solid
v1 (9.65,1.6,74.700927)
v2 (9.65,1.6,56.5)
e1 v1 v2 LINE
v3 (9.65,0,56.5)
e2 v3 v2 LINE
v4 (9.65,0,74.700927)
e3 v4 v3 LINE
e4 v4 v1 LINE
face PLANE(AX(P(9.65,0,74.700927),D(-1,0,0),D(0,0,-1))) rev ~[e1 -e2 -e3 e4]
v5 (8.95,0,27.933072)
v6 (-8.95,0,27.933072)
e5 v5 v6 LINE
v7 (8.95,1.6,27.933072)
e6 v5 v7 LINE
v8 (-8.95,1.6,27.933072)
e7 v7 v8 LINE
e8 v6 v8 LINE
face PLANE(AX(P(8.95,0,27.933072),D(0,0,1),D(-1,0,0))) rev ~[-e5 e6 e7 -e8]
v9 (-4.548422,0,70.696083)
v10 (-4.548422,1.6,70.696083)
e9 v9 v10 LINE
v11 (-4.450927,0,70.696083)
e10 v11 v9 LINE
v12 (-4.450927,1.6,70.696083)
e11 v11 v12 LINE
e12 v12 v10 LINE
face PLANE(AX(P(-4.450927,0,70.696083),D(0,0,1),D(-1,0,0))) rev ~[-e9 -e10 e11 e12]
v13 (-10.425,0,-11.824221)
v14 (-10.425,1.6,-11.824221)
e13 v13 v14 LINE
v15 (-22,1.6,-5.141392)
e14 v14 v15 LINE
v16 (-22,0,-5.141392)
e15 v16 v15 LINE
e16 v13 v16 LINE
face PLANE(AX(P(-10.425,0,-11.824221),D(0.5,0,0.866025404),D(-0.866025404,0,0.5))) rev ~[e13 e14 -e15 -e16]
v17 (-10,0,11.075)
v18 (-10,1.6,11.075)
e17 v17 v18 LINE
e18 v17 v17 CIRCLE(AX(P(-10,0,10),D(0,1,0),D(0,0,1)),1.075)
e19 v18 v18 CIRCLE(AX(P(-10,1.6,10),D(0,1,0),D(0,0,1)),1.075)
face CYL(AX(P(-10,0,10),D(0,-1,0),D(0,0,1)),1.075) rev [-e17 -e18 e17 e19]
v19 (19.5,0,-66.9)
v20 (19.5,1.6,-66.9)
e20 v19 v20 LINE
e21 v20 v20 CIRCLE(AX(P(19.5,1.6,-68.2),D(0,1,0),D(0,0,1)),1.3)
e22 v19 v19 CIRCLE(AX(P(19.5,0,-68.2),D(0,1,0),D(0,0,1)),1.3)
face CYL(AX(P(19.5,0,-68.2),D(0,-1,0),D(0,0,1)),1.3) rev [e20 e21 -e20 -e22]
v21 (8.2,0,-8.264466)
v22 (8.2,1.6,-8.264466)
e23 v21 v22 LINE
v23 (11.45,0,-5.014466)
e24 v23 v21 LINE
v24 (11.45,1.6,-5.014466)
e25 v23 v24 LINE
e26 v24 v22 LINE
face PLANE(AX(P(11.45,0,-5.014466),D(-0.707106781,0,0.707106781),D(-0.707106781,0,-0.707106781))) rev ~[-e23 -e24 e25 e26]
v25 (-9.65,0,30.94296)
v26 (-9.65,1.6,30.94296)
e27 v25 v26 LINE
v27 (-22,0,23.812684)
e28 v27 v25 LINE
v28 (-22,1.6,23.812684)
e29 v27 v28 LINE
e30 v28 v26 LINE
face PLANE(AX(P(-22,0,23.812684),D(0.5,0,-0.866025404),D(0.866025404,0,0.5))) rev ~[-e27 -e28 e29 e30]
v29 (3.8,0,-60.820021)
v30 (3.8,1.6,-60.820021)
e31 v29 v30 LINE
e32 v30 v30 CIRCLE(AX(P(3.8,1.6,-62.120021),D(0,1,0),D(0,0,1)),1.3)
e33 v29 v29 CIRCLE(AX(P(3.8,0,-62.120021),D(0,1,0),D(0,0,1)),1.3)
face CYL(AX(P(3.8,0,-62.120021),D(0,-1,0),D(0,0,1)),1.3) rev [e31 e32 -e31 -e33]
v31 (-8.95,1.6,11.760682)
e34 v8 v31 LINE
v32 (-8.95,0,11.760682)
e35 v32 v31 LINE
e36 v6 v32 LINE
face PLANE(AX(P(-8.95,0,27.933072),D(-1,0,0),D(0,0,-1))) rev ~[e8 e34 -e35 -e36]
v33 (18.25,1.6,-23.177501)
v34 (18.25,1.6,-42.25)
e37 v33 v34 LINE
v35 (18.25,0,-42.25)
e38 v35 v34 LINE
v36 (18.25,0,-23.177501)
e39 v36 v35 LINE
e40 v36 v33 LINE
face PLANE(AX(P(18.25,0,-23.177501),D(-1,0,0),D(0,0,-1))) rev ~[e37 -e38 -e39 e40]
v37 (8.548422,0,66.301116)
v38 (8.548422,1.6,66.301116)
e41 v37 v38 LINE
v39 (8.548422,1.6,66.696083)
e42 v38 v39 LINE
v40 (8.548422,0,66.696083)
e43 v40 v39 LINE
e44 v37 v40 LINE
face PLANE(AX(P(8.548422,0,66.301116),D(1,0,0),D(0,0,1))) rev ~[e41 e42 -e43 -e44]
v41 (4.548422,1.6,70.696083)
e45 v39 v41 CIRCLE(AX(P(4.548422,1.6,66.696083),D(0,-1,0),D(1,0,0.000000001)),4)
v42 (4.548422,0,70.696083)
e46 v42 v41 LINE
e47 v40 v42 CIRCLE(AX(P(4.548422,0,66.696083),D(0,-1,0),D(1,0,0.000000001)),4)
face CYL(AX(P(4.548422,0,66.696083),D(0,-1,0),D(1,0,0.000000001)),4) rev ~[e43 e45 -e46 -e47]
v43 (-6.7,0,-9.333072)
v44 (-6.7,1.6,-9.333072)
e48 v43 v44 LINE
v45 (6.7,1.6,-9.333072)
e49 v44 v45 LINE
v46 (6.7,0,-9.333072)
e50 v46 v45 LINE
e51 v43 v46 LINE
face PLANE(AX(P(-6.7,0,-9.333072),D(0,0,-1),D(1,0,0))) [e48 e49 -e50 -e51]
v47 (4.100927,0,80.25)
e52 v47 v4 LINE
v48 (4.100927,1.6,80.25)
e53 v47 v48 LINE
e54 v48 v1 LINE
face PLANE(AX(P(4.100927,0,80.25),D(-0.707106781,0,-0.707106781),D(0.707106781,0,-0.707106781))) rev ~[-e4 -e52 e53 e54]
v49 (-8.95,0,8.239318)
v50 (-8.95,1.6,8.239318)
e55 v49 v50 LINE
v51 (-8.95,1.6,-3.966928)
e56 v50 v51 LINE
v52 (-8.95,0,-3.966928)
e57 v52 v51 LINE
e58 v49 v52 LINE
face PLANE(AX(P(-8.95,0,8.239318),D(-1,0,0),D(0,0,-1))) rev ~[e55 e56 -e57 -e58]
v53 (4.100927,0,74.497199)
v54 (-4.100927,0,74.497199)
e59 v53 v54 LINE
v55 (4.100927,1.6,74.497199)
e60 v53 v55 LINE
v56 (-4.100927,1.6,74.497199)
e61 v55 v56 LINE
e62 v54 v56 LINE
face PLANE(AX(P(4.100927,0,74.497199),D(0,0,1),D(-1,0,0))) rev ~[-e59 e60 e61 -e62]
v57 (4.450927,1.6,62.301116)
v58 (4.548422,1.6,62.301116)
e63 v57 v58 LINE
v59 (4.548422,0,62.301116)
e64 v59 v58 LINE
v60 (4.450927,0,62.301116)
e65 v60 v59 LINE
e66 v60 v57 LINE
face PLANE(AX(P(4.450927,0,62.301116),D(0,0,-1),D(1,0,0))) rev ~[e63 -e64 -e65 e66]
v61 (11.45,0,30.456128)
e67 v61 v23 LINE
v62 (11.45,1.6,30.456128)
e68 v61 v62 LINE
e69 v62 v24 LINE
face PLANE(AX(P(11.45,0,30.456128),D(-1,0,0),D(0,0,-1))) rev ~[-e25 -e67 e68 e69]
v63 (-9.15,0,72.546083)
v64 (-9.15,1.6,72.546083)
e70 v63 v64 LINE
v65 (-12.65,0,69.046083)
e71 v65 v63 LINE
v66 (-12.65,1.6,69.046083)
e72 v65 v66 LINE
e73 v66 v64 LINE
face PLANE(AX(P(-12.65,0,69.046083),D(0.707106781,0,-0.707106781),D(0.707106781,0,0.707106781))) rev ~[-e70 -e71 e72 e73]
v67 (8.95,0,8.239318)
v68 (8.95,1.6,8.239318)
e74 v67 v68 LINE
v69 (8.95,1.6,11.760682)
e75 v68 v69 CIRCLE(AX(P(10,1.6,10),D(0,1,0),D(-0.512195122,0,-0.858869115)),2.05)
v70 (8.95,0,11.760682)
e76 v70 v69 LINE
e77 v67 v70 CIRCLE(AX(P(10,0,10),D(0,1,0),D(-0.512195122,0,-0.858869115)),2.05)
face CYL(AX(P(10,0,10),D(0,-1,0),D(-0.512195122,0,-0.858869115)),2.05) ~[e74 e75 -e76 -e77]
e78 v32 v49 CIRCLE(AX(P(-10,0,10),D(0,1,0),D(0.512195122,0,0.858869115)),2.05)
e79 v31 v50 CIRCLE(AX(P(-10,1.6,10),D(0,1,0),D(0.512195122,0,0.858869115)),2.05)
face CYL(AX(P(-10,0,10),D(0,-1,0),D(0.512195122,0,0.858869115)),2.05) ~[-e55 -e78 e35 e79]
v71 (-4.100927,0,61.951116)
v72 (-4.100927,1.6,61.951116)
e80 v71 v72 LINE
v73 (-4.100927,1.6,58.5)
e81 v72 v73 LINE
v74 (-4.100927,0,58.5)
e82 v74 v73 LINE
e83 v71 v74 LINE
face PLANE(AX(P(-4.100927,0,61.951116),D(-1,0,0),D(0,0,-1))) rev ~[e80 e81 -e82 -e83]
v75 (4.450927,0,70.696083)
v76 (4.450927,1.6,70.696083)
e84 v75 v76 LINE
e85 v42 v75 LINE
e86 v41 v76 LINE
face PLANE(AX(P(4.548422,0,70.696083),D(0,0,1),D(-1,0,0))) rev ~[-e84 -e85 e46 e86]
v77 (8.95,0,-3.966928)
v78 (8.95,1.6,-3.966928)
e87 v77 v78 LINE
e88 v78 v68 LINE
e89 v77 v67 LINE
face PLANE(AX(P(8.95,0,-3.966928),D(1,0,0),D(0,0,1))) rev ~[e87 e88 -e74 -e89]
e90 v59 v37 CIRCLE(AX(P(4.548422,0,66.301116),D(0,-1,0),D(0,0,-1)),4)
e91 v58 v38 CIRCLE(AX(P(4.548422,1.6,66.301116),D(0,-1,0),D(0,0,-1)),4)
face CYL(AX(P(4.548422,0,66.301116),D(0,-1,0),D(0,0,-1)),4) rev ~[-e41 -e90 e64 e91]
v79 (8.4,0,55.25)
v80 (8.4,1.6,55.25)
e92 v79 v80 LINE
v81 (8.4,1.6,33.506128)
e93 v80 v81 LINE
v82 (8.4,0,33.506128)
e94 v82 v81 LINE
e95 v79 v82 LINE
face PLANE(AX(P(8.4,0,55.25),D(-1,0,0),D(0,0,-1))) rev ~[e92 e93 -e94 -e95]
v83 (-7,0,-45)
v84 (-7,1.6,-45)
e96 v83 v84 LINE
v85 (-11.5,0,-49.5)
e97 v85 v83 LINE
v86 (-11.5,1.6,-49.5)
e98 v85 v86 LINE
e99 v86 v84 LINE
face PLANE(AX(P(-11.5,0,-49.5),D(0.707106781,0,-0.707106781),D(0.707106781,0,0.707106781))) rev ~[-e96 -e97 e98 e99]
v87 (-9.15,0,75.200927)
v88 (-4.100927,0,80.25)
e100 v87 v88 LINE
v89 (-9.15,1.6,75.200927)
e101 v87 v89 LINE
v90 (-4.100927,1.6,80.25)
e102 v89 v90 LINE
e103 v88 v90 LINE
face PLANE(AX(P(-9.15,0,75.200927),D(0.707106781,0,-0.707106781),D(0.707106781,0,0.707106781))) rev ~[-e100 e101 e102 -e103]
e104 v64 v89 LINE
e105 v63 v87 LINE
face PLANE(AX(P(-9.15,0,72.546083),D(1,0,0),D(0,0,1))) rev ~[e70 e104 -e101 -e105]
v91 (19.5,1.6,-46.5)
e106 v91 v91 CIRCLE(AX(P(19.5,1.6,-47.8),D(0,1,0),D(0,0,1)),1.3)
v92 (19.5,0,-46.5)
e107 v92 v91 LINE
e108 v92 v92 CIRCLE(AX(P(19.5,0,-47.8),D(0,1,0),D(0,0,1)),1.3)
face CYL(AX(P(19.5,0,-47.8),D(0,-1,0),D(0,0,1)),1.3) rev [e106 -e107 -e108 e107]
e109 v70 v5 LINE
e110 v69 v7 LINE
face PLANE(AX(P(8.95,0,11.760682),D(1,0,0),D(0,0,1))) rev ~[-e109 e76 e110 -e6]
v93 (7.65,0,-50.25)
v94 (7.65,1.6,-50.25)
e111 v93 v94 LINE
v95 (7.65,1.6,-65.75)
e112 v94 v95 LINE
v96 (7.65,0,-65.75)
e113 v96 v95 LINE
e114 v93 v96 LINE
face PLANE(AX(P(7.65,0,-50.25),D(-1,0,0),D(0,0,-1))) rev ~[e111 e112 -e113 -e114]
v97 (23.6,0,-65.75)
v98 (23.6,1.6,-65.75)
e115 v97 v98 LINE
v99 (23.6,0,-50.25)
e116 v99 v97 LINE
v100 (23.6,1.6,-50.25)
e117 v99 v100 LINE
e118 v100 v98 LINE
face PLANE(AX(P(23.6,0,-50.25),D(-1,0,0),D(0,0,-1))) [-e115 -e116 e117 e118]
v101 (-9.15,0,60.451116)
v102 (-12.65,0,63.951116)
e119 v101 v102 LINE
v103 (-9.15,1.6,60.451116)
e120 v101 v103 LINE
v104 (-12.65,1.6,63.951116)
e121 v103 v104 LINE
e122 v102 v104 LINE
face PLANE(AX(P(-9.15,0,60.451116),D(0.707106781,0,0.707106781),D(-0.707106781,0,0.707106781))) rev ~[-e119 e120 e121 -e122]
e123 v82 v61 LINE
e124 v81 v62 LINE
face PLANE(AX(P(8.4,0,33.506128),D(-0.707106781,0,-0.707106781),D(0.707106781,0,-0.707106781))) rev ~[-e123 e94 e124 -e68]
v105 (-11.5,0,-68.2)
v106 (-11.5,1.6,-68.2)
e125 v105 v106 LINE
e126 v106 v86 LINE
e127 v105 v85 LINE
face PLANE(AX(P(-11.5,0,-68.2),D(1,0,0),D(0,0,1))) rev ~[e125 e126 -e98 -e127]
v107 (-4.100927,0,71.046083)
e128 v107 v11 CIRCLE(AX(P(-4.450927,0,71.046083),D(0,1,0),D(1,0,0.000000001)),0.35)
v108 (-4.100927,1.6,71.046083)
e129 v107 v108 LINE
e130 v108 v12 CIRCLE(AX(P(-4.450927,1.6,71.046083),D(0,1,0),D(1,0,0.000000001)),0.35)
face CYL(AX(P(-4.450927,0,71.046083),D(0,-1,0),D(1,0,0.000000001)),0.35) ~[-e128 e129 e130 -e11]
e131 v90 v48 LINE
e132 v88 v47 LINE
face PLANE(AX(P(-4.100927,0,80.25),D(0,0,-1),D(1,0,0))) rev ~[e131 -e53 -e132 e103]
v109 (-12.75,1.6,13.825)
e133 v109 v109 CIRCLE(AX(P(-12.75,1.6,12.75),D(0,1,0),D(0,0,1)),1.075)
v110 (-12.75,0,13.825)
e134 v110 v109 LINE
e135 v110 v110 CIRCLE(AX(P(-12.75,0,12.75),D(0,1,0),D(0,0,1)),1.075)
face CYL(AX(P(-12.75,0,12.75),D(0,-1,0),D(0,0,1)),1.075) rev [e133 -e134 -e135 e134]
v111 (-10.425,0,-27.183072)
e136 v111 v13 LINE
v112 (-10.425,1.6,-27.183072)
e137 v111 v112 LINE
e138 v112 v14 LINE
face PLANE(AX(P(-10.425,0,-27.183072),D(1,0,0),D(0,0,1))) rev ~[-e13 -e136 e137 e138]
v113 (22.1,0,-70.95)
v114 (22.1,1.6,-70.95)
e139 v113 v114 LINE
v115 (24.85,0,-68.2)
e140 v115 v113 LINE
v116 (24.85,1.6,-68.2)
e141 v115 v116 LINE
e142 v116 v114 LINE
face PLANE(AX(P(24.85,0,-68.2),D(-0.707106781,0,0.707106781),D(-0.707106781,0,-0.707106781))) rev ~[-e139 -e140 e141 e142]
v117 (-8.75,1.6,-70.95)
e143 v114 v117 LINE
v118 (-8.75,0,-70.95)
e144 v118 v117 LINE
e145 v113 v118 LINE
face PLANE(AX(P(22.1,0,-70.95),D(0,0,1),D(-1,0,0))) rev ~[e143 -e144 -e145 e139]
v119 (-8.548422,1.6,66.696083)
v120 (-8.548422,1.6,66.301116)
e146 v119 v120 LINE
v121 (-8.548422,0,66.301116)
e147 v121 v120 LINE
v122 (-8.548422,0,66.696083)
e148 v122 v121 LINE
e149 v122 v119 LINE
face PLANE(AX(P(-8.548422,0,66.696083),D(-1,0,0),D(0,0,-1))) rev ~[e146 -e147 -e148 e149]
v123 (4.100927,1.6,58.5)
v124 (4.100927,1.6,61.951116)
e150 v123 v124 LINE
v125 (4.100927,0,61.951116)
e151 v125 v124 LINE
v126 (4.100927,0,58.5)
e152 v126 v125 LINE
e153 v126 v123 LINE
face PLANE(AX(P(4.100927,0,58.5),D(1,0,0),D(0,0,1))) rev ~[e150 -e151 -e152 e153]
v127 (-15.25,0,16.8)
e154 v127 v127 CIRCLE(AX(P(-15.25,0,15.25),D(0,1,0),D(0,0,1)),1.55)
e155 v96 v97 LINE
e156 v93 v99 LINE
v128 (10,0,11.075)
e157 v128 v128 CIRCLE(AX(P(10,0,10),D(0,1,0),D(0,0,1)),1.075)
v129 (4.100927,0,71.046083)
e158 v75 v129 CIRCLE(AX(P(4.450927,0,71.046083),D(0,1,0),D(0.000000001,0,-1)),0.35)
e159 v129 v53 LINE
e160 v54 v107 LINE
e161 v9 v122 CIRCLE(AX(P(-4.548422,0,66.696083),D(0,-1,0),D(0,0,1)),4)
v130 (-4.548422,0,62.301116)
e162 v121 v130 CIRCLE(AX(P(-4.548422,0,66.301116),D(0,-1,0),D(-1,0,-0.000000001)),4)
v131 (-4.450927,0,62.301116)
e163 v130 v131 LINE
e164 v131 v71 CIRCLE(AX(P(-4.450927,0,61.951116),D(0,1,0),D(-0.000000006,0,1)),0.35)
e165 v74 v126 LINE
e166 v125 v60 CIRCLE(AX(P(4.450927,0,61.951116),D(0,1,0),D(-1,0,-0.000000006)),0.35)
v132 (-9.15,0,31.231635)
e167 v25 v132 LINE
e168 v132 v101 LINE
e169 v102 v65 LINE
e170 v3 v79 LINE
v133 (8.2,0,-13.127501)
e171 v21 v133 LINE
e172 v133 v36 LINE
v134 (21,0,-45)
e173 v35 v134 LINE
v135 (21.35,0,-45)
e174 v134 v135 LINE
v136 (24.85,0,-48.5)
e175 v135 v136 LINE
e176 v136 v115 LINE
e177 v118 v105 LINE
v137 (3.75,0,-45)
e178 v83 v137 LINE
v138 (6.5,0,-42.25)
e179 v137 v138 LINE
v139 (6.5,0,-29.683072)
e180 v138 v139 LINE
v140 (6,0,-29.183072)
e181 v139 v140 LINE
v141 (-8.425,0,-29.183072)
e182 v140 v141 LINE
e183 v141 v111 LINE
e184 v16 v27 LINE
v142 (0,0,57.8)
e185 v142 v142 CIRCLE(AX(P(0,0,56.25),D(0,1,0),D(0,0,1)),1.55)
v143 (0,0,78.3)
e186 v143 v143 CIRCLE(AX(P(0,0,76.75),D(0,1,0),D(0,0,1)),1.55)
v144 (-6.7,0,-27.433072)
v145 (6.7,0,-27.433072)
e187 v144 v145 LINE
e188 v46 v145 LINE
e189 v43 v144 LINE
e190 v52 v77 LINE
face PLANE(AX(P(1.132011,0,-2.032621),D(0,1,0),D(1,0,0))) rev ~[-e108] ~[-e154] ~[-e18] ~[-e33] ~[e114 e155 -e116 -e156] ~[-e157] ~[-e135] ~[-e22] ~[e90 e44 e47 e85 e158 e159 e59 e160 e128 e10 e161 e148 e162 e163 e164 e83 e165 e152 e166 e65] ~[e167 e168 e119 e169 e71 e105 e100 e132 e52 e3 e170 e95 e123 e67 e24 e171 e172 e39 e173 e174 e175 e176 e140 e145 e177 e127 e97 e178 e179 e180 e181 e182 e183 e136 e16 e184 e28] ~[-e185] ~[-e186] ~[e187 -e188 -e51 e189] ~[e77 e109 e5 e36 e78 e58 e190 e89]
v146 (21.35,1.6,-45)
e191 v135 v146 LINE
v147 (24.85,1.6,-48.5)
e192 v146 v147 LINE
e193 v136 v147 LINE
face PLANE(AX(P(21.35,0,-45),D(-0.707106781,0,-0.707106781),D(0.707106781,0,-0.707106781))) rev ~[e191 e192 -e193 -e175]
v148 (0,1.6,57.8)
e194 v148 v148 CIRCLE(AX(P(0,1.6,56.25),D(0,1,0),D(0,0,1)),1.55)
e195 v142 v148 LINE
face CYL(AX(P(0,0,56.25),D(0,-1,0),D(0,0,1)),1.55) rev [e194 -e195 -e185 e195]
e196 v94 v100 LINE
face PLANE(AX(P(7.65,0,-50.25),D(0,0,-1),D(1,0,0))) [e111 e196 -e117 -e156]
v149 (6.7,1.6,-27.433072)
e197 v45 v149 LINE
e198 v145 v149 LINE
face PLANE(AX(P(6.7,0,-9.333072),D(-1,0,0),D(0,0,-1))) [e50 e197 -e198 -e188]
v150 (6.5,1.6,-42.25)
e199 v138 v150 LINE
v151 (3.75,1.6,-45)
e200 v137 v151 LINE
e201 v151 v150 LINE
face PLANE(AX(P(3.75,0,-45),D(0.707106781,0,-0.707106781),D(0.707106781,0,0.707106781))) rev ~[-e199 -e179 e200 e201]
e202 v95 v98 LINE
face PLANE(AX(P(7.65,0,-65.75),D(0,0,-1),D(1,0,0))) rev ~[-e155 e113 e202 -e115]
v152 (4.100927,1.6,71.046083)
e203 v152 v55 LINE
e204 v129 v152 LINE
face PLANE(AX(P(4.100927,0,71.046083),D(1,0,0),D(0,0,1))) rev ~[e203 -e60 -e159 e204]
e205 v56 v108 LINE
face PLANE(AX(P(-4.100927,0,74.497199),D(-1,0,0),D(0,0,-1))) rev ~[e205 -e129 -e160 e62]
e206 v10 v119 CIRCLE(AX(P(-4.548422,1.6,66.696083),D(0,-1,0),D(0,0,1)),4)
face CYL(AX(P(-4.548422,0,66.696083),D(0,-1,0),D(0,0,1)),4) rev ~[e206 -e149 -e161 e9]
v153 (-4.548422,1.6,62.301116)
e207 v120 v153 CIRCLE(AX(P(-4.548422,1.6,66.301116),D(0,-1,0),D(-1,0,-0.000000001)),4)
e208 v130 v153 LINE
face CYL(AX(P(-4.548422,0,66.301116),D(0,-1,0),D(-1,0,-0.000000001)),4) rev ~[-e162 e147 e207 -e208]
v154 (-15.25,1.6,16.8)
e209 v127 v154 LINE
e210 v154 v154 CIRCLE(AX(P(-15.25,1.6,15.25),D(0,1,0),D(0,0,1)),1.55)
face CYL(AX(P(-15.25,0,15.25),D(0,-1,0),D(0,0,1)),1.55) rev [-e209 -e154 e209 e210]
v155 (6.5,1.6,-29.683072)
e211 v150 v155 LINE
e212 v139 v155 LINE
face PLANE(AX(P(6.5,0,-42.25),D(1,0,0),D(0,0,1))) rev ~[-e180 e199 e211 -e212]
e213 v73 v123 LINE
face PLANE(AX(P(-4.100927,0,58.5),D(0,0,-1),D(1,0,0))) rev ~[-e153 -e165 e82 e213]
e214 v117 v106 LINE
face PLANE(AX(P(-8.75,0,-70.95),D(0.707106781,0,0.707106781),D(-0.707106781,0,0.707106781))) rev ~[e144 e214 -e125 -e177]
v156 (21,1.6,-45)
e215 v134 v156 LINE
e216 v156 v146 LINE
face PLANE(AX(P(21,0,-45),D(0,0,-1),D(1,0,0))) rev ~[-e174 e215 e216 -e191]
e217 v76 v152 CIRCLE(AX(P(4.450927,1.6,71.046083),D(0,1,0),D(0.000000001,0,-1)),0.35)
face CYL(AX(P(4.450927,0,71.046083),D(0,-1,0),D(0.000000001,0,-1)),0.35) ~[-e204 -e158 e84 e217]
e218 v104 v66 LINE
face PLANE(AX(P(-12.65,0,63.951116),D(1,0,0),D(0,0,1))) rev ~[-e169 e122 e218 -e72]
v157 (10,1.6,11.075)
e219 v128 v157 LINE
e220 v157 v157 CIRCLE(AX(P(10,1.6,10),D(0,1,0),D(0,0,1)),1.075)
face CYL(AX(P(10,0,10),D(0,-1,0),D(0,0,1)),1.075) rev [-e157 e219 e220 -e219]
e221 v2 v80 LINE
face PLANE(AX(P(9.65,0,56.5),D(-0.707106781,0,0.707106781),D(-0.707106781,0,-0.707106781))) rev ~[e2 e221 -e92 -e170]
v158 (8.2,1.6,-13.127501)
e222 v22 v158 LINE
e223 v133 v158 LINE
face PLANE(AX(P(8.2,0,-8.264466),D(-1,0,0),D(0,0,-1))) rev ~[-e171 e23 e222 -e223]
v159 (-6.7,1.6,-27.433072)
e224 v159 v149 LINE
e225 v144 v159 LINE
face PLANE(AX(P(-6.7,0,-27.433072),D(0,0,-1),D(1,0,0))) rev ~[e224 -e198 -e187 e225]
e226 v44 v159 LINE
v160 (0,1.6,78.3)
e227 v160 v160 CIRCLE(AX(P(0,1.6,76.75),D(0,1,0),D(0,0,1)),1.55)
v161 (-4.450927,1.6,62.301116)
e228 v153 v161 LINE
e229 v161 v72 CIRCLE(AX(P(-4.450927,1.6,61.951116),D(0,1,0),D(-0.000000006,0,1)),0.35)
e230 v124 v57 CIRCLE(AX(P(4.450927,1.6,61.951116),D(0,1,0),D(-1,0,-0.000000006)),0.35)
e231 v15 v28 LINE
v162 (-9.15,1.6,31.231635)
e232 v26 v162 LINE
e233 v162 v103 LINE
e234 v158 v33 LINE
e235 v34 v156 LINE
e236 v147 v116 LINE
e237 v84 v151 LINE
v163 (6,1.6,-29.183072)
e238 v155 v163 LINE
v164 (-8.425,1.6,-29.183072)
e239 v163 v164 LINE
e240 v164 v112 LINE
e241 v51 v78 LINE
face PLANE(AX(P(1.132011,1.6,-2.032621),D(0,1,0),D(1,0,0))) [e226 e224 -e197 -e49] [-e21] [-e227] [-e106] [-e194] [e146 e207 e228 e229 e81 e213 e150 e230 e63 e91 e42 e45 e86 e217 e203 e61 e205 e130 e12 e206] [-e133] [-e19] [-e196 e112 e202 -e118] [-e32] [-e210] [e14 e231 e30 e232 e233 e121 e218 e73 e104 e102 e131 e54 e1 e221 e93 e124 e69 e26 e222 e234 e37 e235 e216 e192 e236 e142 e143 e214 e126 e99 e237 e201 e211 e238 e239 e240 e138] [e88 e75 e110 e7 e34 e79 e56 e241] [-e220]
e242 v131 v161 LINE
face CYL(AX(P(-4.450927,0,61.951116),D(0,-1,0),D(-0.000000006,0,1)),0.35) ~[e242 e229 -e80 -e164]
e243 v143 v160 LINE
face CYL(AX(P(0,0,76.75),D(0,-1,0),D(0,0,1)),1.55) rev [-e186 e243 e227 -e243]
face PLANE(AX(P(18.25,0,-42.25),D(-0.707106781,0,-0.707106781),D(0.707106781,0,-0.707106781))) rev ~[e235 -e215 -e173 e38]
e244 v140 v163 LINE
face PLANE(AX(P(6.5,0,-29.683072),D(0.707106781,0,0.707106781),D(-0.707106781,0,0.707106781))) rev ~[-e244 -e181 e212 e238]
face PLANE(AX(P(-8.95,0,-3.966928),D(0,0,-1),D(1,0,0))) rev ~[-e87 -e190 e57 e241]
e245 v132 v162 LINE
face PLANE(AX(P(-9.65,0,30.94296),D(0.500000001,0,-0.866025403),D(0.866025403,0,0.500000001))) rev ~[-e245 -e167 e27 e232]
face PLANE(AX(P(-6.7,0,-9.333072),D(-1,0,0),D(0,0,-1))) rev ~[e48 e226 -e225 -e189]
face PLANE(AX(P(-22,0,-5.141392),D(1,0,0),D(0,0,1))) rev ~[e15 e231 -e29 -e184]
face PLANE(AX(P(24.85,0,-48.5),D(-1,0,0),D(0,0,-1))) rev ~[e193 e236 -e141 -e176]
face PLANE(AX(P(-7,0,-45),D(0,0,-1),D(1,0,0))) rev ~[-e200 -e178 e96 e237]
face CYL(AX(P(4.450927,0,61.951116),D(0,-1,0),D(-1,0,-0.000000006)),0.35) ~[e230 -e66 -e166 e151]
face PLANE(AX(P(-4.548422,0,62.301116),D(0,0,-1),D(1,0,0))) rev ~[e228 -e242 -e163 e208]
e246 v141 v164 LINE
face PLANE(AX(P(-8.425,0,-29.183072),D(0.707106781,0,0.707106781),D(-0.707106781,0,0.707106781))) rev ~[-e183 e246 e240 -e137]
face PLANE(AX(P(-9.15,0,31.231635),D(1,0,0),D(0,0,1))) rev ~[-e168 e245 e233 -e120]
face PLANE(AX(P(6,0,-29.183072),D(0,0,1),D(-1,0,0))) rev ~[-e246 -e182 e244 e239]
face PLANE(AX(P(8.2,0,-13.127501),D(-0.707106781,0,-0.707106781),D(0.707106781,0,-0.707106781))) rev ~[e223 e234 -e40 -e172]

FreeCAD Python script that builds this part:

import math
import FreeCAD as App
import Part
import Sketcher

V = App.Vector
Q = App.Units.Quantity

doc = App.newDocument("Part")
body = doc.addObject("PartDesign::Body", "Body")

# Sketch on XZ plane
sketch1 = body.newObject("Sketcher::SketchObject", "Sketch")
sketch1.AttachmentSupport = (doc.getObject("XZ_Plane"), [""])
sketch1.MapMode = "FlatFace"
sketch1.addGeometry(Part.LineSegment(V(3.75, -45, 0), V(6.5, -42.25, 0)), False)
sketch1.addGeometry(Part.LineSegment(V(6.5, -42.25, 0), V(6.5, -29.68, 0)), False)
sketch1.addGeometry(Part.LineSegment(V(6.5, -29.68, 0), V(6, -29.18, 0)), False)
sketch1.addGeometry(Part.LineSegment(V(6, -29.18, 0), V(-8.43, -29.18, 0)), False)
sketch1.addGeometry(Part.LineSegment(V(-8.43, -29.18, 0), V(-10.43, -27.18, 0)), False)
sketch1.addGeometry(Part.LineSegment(V(-10.43, -27.18, 0), V(-10.43, -11.82, 0)), False)
sketch1.addGeometry(Part.LineSegment(V(-10.43, -11.82, 0), V(-22, -5.14, 0)), False)
sketch1.addGeometry(Part.LineSegment(V(-22, -5.14, 0), V(-22, 23.81, 0)), False)
sketch1.addGeometry(Part.LineSegment(V(-22, 23.81, 0), V(-9.65, 30.94, 0)), False)
sketch1.addGeometry(Part.LineSegment(V(-9.65, 30.94, 0), V(-9.15, 31.23, 0)), False)
sketch1.addGeometry(Part.LineSegment(V(-9.15, 31.23, 0), V(-9.15, 60.45, 0)), False)
sketch1.addGeometry(Part.LineSegment(V(-9.15, 60.45, 0), V(-12.65, 63.95, 0)), False)
sketch1.addGeometry(Part.LineSegment(V(-12.65, 63.95, 0), V(-12.65, 69.05, 0)), False)
sketch1.addGeometry(Part.LineSegment(V(-12.65, 69.05, 0), V(-9.15, 72.55, 0)), False)
sketch1.addGeometry(Part.LineSegment(V(-9.15, 72.55, 0), V(-9.15, 75.2, 0)), False)
sketch1.addGeometry(Part.LineSegment(V(-9.15, 75.2, 0), V(-4.1, 80.25, 0)), False)
sketch1.addGeometry(Part.LineSegment(V(-4.1, 80.25, 0), V(4.1, 80.25, 0)), False)
sketch1.addGeometry(Part.LineSegment(V(4.1, 80.25, 0), V(9.65, 74.7, 0)), False)
sketch1.addGeometry(Part.LineSegment(V(9.65, 74.7, 0), V(9.65, 56.5, 0)), False)
sketch1.addGeometry(Part.LineSegment(V(9.65, 56.5, 0), V(8.4, 55.25, 0)), False)
sketch1.addGeometry(Part.LineSegment(V(8.4, 55.25, 0), V(8.4, 33.51, 0)), False)
sketch1.addGeometry(Part.LineSegment(V(8.4, 33.51, 0), V(11.45, 30.46, 0)), False)
sketch1.addGeometry(Part.LineSegment(V(11.45, 30.46, 0), V(11.45, -5.01, 0)), False)
sketch1.addGeometry(Part.LineSegment(V(11.45, -5.01, 0), V(8.2, -8.26, 0)), False)
sketch1.addGeometry(Part.LineSegment(V(8.2, -8.26, 0), V(8.2, -13.13, 0)), False)
sketch1.addGeometry(Part.LineSegment(V(8.2, -13.13, 0), V(18.25, -23.18, 0)), False)
sketch1.addGeometry(Part.LineSegment(V(18.25, -23.18, 0), V(18.25, -42.25, 0)), False)
sketch1.addGeometry(Part.LineSegment(V(18.25, -42.25, 0), V(21, -45, 0)), False)
sketch1.addGeometry(Part.LineSegment(V(21, -45, 0), V(21.35, -45, 0)), False)
sketch1.addGeometry(Part.LineSegment(V(21.35, -45, 0), V(24.85, -48.5, 0)), False)
sketch1.addGeometry(Part.LineSegment(V(24.85, -48.5, 0), V(24.85, -68.2, 0)), False)
sketch1.addGeometry(Part.LineSegment(V(24.85, -68.2, 0), V(22.1, -70.95, 0)), False)
sketch1.addGeometry(Part.LineSegment(V(22.1, -70.95, 0), V(-8.75, -70.95, 0)), False)
sketch1.addGeometry(Part.LineSegment(V(-8.75, -70.95, 0), V(-11.5, -68.2, 0)), False)
sketch1.addGeometry(Part.LineSegment(V(-11.5, -68.2, 0), V(-11.5, -49.5, 0)), False)
sketch1.addGeometry(Part.LineSegment(V(-11.5, -49.5, 0), V(-7, -45, 0)), False)
sketch1.addGeometry(Part.LineSegment(V(-7, -45, 0), V(3.75, -45, 0)), False)
sketch1.addGeometry(Part.Circle(V(0, 76.75, 0), V(0, 0, 1), 1.55), False)
sketch1.addGeometry(Part.ArcOfCircle(Part.Circle(V(-4.45, 61.95, 0), V(0, 0, 1), 0.35), math.radians(0), math.radians(90)), False)
sketch1.addGeometry(Part.LineSegment(V(-4.1, 61.95, 0), V(-4.1, 58.5, 0)), False)
sketch1.addGeometry(Part.LineSegment(V(-4.1, 58.5, 0), V(4.1, 58.5, 0)), False)
sketch1.addGeometry(Part.LineSegment(V(4.1, 58.5, 0), V(4.1, 61.95, 0)), False)
sketch1.addGeometry(Part.ArcOfCircle(Part.Circle(V(4.45, 61.95, 0), V(0, 0, 1), 0.35), math.radians(90), math.radians(180)), False)
sketch1.addGeometry(Part.LineSegment(V(4.45, 62.3, 0), V(4.55, 62.3, 0)), False)
sketch1.addGeometry(Part.ArcOfCircle(Part.Circle(V(4.55, 66.3, 0), V(0, 0, 1), 4), math.radians(-90), math.radians(0)), False)
sketch1.addGeometry(Part.LineSegment(V(8.55, 66.3, 0), V(8.55, 66.7, 0)), False)
sketch1.addGeometry(Part.ArcOfCircle(Part.Circle(V(4.55, 66.7, 0), V(0, 0, 1), 4), math.radians(0), math.radians(90)), False)
sketch1.addGeometry(Part.LineSegment(V(4.55, 70.7, 0), V(4.45, 70.7, 0)), False)
sketch1.addGeometry(Part.ArcOfCircle(Part.Circle(V(4.45, 71.05, 0), V(0, 0, 1), 0.35), math.radians(180), math.radians(270)), False)
sketch1.addGeometry(Part.LineSegment(V(4.1, 71.05, 0), V(4.1, 74.5, 0)), False)
sketch1.addGeometry(Part.LineSegment(V(4.1, 74.5, 0), V(-4.1, 74.5, 0)), False)
sketch1.addGeometry(Part.LineSegment(V(-4.1, 74.5, 0), V(-4.1, 71.05, 0)), False)
sketch1.addGeometry(Part.ArcOfCircle(Part.Circle(V(-4.45, 71.05, 0), V(0, 0, 1), 0.35), math.radians(-90), math.radians(0)), False)
sketch1.addGeometry(Part.LineSegment(V(-4.45, 70.7, 0), V(-4.55, 70.7, 0)), False)
sketch1.addGeometry(Part.ArcOfCircle(Part.Circle(V(-4.55, 66.7, 0), V(0, 0, 1), 4), math.radians(90), math.radians(180)), False)
sketch1.addGeometry(Part.LineSegment(V(-8.55, 66.7, 0), V(-8.55, 66.3, 0)), False)
sketch1.addGeometry(Part.ArcOfCircle(Part.Circle(V(-4.55, 66.3, 0), V(0, 0, 1), 4), math.radians(-180), math.radians(-90)), False)
sketch1.addGeometry(Part.LineSegment(V(-4.55, 62.3, 0), V(-4.45, 62.3, 0)), False)
sketch1.addGeometry(Part.Circle(V(0, 56.25, 0), V(0, 0, 1), 1.55), False)
sketch1.addGeometry(Part.Circle(V(-15.25, 15.25, 0), V(0, 0, 1), 1.55), False)
sketch1.addGeometry(Part.Circle(V(-12.75, 12.75, 0), V(0, 0, 1), 1.07), False)
sketch1.addGeometry(Part.Circle(V(-10, 10, 0), V(0, 0, 1), 1.07), False)
sketch1.addGeometry(Part.ArcOfCircle(Part.Circle(V(-10, 10, 0), V(0, 0, 1), 2.05), math.radians(-59), math.radians(59)), False)
sketch1.addGeometry(Part.LineSegment(V(-8.95, 8.24, 0), V(-8.95, -3.97, 0)), False)
sketch1.addGeometry(Part.LineSegment(V(-8.95, -3.97, 0), V(8.95, -3.97, 0)), False)
sketch1.addGeometry(Part.LineSegment(V(8.95, -3.97, 0), V(8.95, 8.24, 0)), False)
sketch1.addGeometry(Part.ArcOfCircle(Part.Circle(V(10, 10, 0), V(0, 0, 1), 2.05), math.radians(121), math.radians(239)), False)
sketch1.addGeometry(Part.LineSegment(V(8.95, 11.76, 0), V(8.95, 27.93, 0)), False)
sketch1.addGeometry(Part.LineSegment(V(8.95, 27.93, 0), V(-8.95, 27.93, 0)), False)
sketch1.addGeometry(Part.LineSegment(V(-8.95, 27.93, 0), V(-8.95, 11.76, 0)), False)
sketch1.addGeometry(Part.Circle(V(10, 10, 0), V(0, 0, 1), 1.07), False)
sketch1.addGeometry(Part.LineSegment(V(6.7, -9.33, 0), V(-6.7, -9.33, 0)), False)
sketch1.addGeometry(Part.LineSegment(V(-6.7, -9.33, 0), V(-6.7, -27.43, 0)), False)
sketch1.addGeometry(Part.LineSegment(V(-6.7, -27.43, 0), V(6.7, -27.43, 0)), False)
sketch1.addGeometry(Part.LineSegment(V(6.7, -27.43, 0), V(6.7, -9.33, 0)), False)
sketch1.addGeometry(Part.Circle(V(3.8, -62.12, 0), V(0, 0, 1), 1.3), False)
sketch1.addGeometry(Part.Circle(V(19.5, -47.8, 0), V(0, 0, 1), 1.3), False)
sketch1.addGeometry(Part.LineSegment(V(23.6, -50.25, 0), V(7.65, -50.25, 0)), False)
sketch1.addGeometry(Part.LineSegment(V(7.65, -50.25, 0), V(7.65, -65.75, 0)), False)
sketch1.addGeometry(Part.LineSegment(V(7.65, -65.75, 0), V(23.6, -65.75, 0)), False)
sketch1.addGeometry(Part.LineSegment(V(23.6, -65.75, 0), V(23.6, -50.25, 0)), False)
sketch1.addGeometry(Part.Circle(V(19.5, -68.2, 0), V(0, 0, 1), 1.3), False)
sketch1.addConstraint(Sketcher.Constraint("Coincident", 0, 2, 1, 1))
sketch1.addConstraint(Sketcher.Constraint("Coincident", 1, 2, 2, 1))
sketch1.addConstraint(Sketcher.Constraint("Coincident", 2, 2, 3, 1))
sketch1.addConstraint(Sketcher.Constraint("Coincident", 3, 2, 4, 1))
sketch1.addConstraint(Sketcher.Constraint("Coincident", 4, 2, 5, 1))
sketch1.addConstraint(Sketcher.Constraint("Coincident", 5, 2, 6, 1))
sketch1.addConstraint(Sketcher.Constraint("Coincident", 6, 2, 7, 1))
sketch1.addConstraint(Sketcher.Constraint("Coincident", 7, 2, 8, 1))
sketch1.addConstraint(Sketcher.Constraint("Coincident", 8, 2, 9, 1))
sketch1.addConstraint(Sketcher.Constraint("Coincident", 9, 2, 10, 1))
sketch1.addConstraint(Sketcher.Constraint("Coincident", 10, 2, 11, 1))
sketch1.addConstraint(Sketcher.Constraint("Coincident", 11, 2, 12, 1))
sketch1.addConstraint(Sketcher.Constraint("Coincident", 12, 2, 13, 1))
sketch1.addConstraint(Sketcher.Constraint("Coincident", 13, 2, 14, 1))
sketch1.addConstraint(Sketcher.Constraint("Coincident", 14, 2, 15, 1))
sketch1.addConstraint(Sketcher.Constraint("Coincident", 15, 2, 16, 1))
sketch1.addConstraint(Sketcher.Constraint("Coincident", 16, 2, 17, 1))
sketch1.addConstraint(Sketcher.Constraint("Coincident", 17, 2, 18, 1))
sketch1.addConstraint(Sketcher.Constraint("Coincident", 18, 2, 19, 1))
sketch1.addConstraint(Sketcher.Constraint("Coincident", 19, 2, 20, 1))
sketch1.addConstraint(Sketcher.Constraint("Coincident", 20, 2, 21, 1))
sketch1.addConstraint(Sketcher.Constraint("Coincident", 21, 2, 22, 1))
sketch1.addConstraint(Sketcher.Constraint("Coincident", 22, 2, 23, 1))
sketch1.addConstraint(Sketcher.Constraint("Coincident", 23, 2, 24, 1))
sketch1.addConstraint(Sketcher.Constraint("Coincident", 24, 2, 25, 1))
sketch1.addConstraint(Sketcher.Constraint("Coincident", 25, 2, 26, 1))
sketch1.addConstraint(Sketcher.Constraint("Coincident", 26, 2, 27, 1))
sketch1.addConstraint(Sketcher.Constraint("Coincident", 27, 2, 28, 1))
sketch1.addConstraint(Sketcher.Constraint("Coincident", 28, 2, 29, 1))
sketch1.addConstraint(Sketcher.Constraint("Coincident", 29, 2, 30, 1))
sketch1.addConstraint(Sketcher.Constraint("Coincident", 30, 2, 31, 1))
sketch1.addConstraint(Sketcher.Constraint("Coincident", 31, 2, 32, 1))
sketch1.addConstraint(Sketcher.Constraint("Coincident", 32, 2, 33, 1))
sketch1.addConstraint(Sketcher.Constraint("Coincident", 33, 2, 34, 1))
sketch1.addConstraint(Sketcher.Constraint("Coincident", 34, 2, 35, 1))
sketch1.addConstraint(Sketcher.Constraint("Coincident", 35, 2, 36, 1))
sketch1.addConstraint(Sketcher.Constraint("Coincident", 36, 2, 0, 1))
sketch1.addConstraint(Sketcher.Constraint("Tangent", 38, 1, 39, 1))
sketch1.addConstraint(Sketcher.Constraint("Coincident", 39, 2, 40, 1))
sketch1.addConstraint(Sketcher.Constraint("Coincident", 40, 2, 41, 1))
sketch1.addConstraint(Sketcher.Constraint("Tangent", 41, 2, 42, 2))
sketch1.addConstraint(Sketcher.Constraint("Tangent", 42, 1, 43, 1))
sketch1.addConstraint(Sketcher.Constraint("Tangent", 43, 2, 44, 1))
sketch1.addConstraint(Sketcher.Constraint("Tangent", 44, 2, 45, 1))
sketch1.addConstraint(Sketcher.Constraint("Tangent", 45, 2, 46, 1))
sketch1.addConstraint(Sketcher.Constraint("Tangent", 46, 2, 47, 1))
sketch1.addConstraint(Sketcher.Constraint("Tangent", 47, 2, 48, 2))
sketch1.addConstraint(Sketcher.Constraint("Tangent", 48, 1, 49, 1))
sketch1.addConstraint(Sketcher.Constraint("Coincident", 49, 2, 50, 1))
sketch1.addConstraint(Sketcher.Constraint("Coincident", 50, 2, 51, 1))
sketch1.addConstraint(Sketcher.Constraint("Tangent", 51, 2, 52, 2))
sketch1.addConstraint(Sketcher.Constraint("Tangent", 52, 1, 53, 1))
sketch1.addConstraint(Sketcher.Constraint("Tangent", 53, 2, 54, 1))
sketch1.addConstraint(Sketcher.Constraint("Tangent", 54, 2, 55, 1))
sketch1.addConstraint(Sketcher.Constraint("Tangent", 55, 2, 56, 1))
sketch1.addConstraint(Sketcher.Constraint("Tangent", 56, 2, 57, 1))
sketch1.addConstraint(Sketcher.Constraint("Tangent", 57, 2, 38, 2))
sketch1.addConstraint(Sketcher.Constraint("Coincident", 62, 1, 63, 1))
sketch1.addConstraint(Sketcher.Constraint("Coincident", 63, 2, 64, 1))
sketch1.addConstraint(Sketcher.Constraint("Coincident", 64, 2, 65, 1))
sketch1.addConstraint(Sketcher.Constraint("Coincident", 65, 2, 66, 2))
sketch1.addConstraint(Sketcher.Constraint("Coincident", 66, 1, 67, 1))
sketch1.addConstraint(Sketcher.Constraint("Coincident", 67, 2, 68, 1))
sketch1.addConstraint(Sketcher.Constraint("Coincident", 68, 2, 69, 1))
sketch1.addConstraint(Sketcher.Constraint("Coincident", 69, 2, 62, 2))
sketch1.addConstraint(Sketcher.Constraint("Coincident", 71, 2, 72, 1))
sketch1.addConstraint(Sketcher.Constraint("Coincident", 72, 2, 73, 1))
sketch1.addConstraint(Sketcher.Constraint("Coincident", 73, 2, 74, 1))
sketch1.addConstraint(Sketcher.Constraint("Coincident", 74, 2, 71, 1))
sketch1.addConstraint(Sketcher.Constraint("Coincident", 77, 2, 78, 1))
sketch1.addConstraint(Sketcher.Constraint("Coincident", 78, 2, 79, 1))
sketch1.addConstraint(Sketcher.Constraint("Coincident", 79, 2, 80, 1))
sketch1.addConstraint(Sketcher.Constraint("Coincident", 80, 2, 77, 1))
sketch1.addConstraint(Sketcher.Constraint("Vertical", 1))
sketch1.addConstraint(Sketcher.Constraint("Horizontal", 3))
sketch1.addConstraint(Sketcher.Constraint("Vertical", 5))
sketch1.addConstraint(Sketcher.Constraint("Vertical", 7))
sketch1.addConstraint(Sketcher.Constraint("Vertical", 10))
sketch1.addConstraint(Sketcher.Constraint("Vertical", 12))
sketch1.addConstraint(Sketcher.Constraint("Vertical", 14))
sketch1.addConstraint(Sketcher.Constraint("Horizontal", 16))
sketch1.addConstraint(Sketcher.Constraint("Vertical", 18))
sketch1.addConstraint(Sketcher.Constraint("Vertical", 20))
sketch1.addConstraint(Sketcher.Constraint("Vertical", 22))
sketch1.addConstraint(Sketcher.Constraint("Vertical", 24))
sketch1.addConstraint(Sketcher.Constraint("Vertical", 26))
sketch1.addConstraint(Sketcher.Constraint("Horizontal", 28))
sketch1.addConstraint(Sketcher.Constraint("Vertical", 30))
sketch1.addConstraint(Sketcher.Constraint("Horizontal", 32))
sketch1.addConstraint(Sketcher.Constraint("Vertical", 34))
sketch1.addConstraint(Sketcher.Constraint("Horizontal", 36))
sketch1.addConstraint(Sketcher.Constraint("Vertical", 39))
sketch1.addConstraint(Sketcher.Constraint("Horizontal", 40))
sketch1.addConstraint(Sketcher.Constraint("Vertical", 41))
sketch1.addConstraint(Sketcher.Constraint("Horizontal", 43))
sketch1.addConstraint(Sketcher.Constraint("Vertical", 45))
sketch1.addConstraint(Sketcher.Constraint("Horizontal", 47))
sketch1.addConstraint(Sketcher.Constraint("Vertical", 49))
sketch1.addConstraint(Sketcher.Constraint("Horizontal", 50))
sketch1.addConstraint(Sketcher.Constraint("Vertical", 51))
sketch1.addConstraint(Sketcher.Constraint("Horizontal", 53))
sketch1.addConstraint(Sketcher.Constraint("Vertical", 55))
sketch1.addConstraint(Sketcher.Constraint("Horizontal", 57))
sketch1.addConstraint(Sketcher.Constraint("Vertical", 63))
sketch1.addConstraint(Sketcher.Constraint("Horizontal", 64))
sketch1.addConstraint(Sketcher.Constraint("Vertical", 65))
sketch1.addConstraint(Sketcher.Constraint("Vertical", 67))
sketch1.addConstraint(Sketcher.Constraint("Horizontal", 68))
sketch1.addConstraint(Sketcher.Constraint("Vertical", 69))
sketch1.addConstraint(Sketcher.Constraint("Horizontal", 71))
sketch1.addConstraint(Sketcher.Constraint("Vertical", 72))
sketch1.addConstraint(Sketcher.Constraint("Horizontal", 73))
sketch1.addConstraint(Sketcher.Constraint("Vertical", 74))
sketch1.addConstraint(Sketcher.Constraint("Horizontal", 77))
sketch1.addConstraint(Sketcher.Constraint("Vertical", 78))
sketch1.addConstraint(Sketcher.Constraint("Horizontal", 79))
sketch1.addConstraint(Sketcher.Constraint("Vertical", 80))
sketch1.addConstraint(Sketcher.Constraint("Coincident", 62, 3, 61, 3))
sketch1.addConstraint(Sketcher.Constraint("Coincident", 70, 3, 66, 3))
sketch1.addConstraint(Sketcher.Constraint("Equal", 38, 42))
sketch1.addConstraint(Sketcher.Constraint("Equal", 44, 46))
sketch1.addConstraint(Sketcher.Constraint("Equal", 42, 48))
sketch1.addConstraint(Sketcher.Constraint("Equal", 48, 52))
sketch1.addConstraint(Sketcher.Constraint("Equal", 46, 54))
sketch1.addConstraint(Sketcher.Constraint("Equal", 54, 56))
sketch1.addConstraint(Sketcher.Constraint("Equal", 37, 58))
sketch1.addConstraint(Sketcher.Constraint("Equal", 58, 59))
sketch1.addConstraint(Sketcher.Constraint("Equal", 60, 61))
sketch1.addConstraint(Sketcher.Constraint("Equal", 62, 66))
sketch1.addConstraint(Sketcher.Constraint("Equal", 61, 70))
sketch1.addConstraint(Sketcher.Constraint("Equal", 75, 76))
sketch1.addConstraint(Sketcher.Constraint("Equal", 76, 81))
sketch1.addConstraint(Sketcher.Constraint("Symmetric", 38, 3, 42, 3, -2))
sketch1.addConstraint(Sketcher.Constraint("Symmetric", 48, 3, 52, 3, -2))
sketch1.addConstraint(Sketcher.Constraint("Symmetric", 61, 3, 66, 3, -2))
sketch1.addConstraint(Sketcher.Constraint("PointOnObject", 37, 3, -2))
sketch1.addConstraint(Sketcher.Constraint("PointOnObject", 58, 3, -2))
sketch1.addConstraint(Sketcher.Constraint("Perpendicular", 0, 2))
sketch1.addConstraint(Sketcher.Constraint("Parallel", 2, 4))
sketch1.addConstraint(Sketcher.Constraint("Parallel", 8, 9))
sketch1.addConstraint(Sketcher.Constraint("Parallel", 4, 11))
sketch1.addConstraint(Sketcher.Constraint("Perpendicular", 11, 13))
sketch1.addConstraint(Sketcher.Constraint("Parallel", 13, 15))
sketch1.addConstraint(Sketcher.Constraint("Perpendicular", 15, 17))
sketch1.addConstraint(Sketcher.Constraint("Perpendicular", 17, 19))
sketch1.addConstraint(Sketcher.Constraint("Perpendicular", 19, 21))
sketch1.addConstraint(Sketcher.Constraint("Perpendicular", 21, 23))
sketch1.addConstraint(Sketcher.Constraint("Perpendicular", 23, 25))
sketch1.addConstraint(Sketcher.Constraint("Parallel", 25, 27))
sketch1.addConstraint(Sketcher.Constraint("Parallel", 27, 29))
sketch1.addConstraint(Sketcher.Constraint("Perpendicular", 29, 31))
sketch1.addConstraint(Sketcher.Constraint("Perpendicular", 31, 33))
sketch1.addConstraint(Sketcher.Constraint("Perpendicular", 33, 35))
sketch1.addConstraint(Sketcher.Constraint("Horizontal", 0, 2, 26, 2))
sketch1.addConstraint(Sketcher.Constraint("Horizontal", 81, 3, 30, 2))
sketch1.addConstraint(Sketcher.Constraint("Horizontal", 30, 2, 33, 2))
sketch1.addConstraint(Sketcher.Constraint("Horizontal", 28, 2, 35, 2))
sketch1.addConstraint(Sketcher.Constraint("Horizontal", 62, 1, 65, 2))
sketch1.addConstraint(Sketcher.Constraint("Horizontal", 66, 1, 69, 2))
sketch1.addConstraint(Sketcher.Constraint("Vertical", 42, 3, 48, 3))
sketch1.addConstraint(Sketcher.Constraint("Vertical", 76, 3, 81, 3))
sketch1.addConstraint(Sketcher.Constraint("Vertical", 10, 2, 13, 2))
sketch1.addConstraint(Sketcher.Constraint("Vertical", 15, 2, 38, 1))
sketch1.addConstraint(Sketcher.Constraint("Vertical", 16, 2, 40, 2))
sketch1.addConstraint(Sketcher.Constraint("Vertical", 65, 2, 66, 1))
sketch1.addConstraint(Sketcher.Constraint("Equal", 47, 53))
sketch1.addConstraint(Sketcher.Constraint("Equal", 41, 49))
sketch1.addConstraint(Sketcher.Constraint("Equal", 11, 13))
sketch1.addConstraint(Sketcher.Constraint("Equal", 13, 29))
sketch1.addConstraint(Sketcher.Constraint("Equal", 27, 31))
sketch1.addConstraint(Sketcher.Constraint("Radius", 44, Q("4 mm")))
sketch1.addConstraint(Sketcher.Constraint("Diameter", 37, Q("3.1 mm")))
sketch1.addConstraint(Sketcher.Constraint("Diameter", 75, Q("2.6 mm")))
sketch1.addConstraint(Sketcher.Constraint("Diameter", 60, Q("2.15 mm")))
sketch1.addConstraint(Sketcher.Constraint("Angle", 6, Q("150 deg")))
sketch1.addConstraint(Sketcher.Constraint("Angle", 8, Q("30 deg")))
sketch1.addConstraint(Sketcher.Constraint("Radius", 38, Q("0.35 mm")))
sketch1.addConstraint(Sketcher.Constraint("Radius", 62, Q("2.05 mm")))
sketch1.addConstraint(Sketcher.Constraint("DistanceX", 64, 1, 64, 2, Q("17.9 mm")))
sketch1.addConstraint(Sketcher.Constraint("DistanceX", 71, 2, 71, 1, Q("13.4 mm")))
sketch1.addConstraint(Sketcher.Constraint("DistanceY", 30, 2, 30, 1, Q("19.7 mm")))
sketch1.addConstraint(Sketcher.Constraint("DistanceY", 34, 1, 34, 2, Q("18.7 mm")))
sketch1.addConstraint(Sketcher.Constraint("DistanceY", 72, 2, 72, 1, Q("18.1 mm")))
sketch1.addConstraint(Sketcher.Constraint("DistanceY", 78, 2, 78, 1, Q("15.5 mm")))
sketch1.addConstraint(Sketcher.Constraint("DistanceX", 61, 3, -1, 1, Q("10 mm")))
sketch1.addConstraint(Sketcher.Constraint("DistanceY", -1, 1, 61, 3, Q("10 mm")))
sketch1.addConstraint(Sketcher.Constraint("DistanceX", -1, 1, 2, 2, Q("6 mm")))
sketch1.addConstraint(Sketcher.Constraint("DistanceX", 6, 2, -1, 1, Q("22 mm")))
sketch1.addConstraint(Sketcher.Constraint("DistanceX", -1, 1, 27, 2, Q("21 mm")))
sketch1.addConstraint(Sketcher.Constraint("DistanceY", 27, 2, -1, 1, Q("45 mm")))
sketch1.addConstraint(Sketcher.Constraint("DistanceX", 35, 2, -1, 1, Q("7 mm")))
sketch1.addConstraint(Sketcher.Constraint("DistanceX", 28, 1, 28, 2, Q("0.35 mm")))
sketch1.addConstraint(Sketcher.Constraint("DistanceX", 32, 2, 32, 1, Q("30.85 mm")))
sketch1.addConstraint(Sketcher.Constraint("DistanceX", 36, 1, 36, 2, Q("10.75 mm")))
sketch1.addConstraint(Sketcher.Constraint("DistanceX", 77, 2, 77, 1, Q("15.95 mm")))
sketch1.addConstraint(Sketcher.Constraint("DistanceX", -1, 1, 75, 3, Q("3.8 mm")))
sketch1.addConstraint(Sketcher.Constraint("DistanceX", -1, 1, 76, 3, Q("19.5 mm")))
sketch1.addConstraint(Sketcher.Constraint("DistanceY", 76, 3, -1, 1, Q("47.8 mm")))
sketch1.addConstraint(Sketcher.Constraint("DistanceY", 81, 3, -1, 1, Q("68.2 mm")))
sketch1.addConstraint(Sketcher.Constraint("DistanceY", -1, 1, 18, 2, Q("56.5 mm")))
sketch1.addConstraint(Sketcher.Constraint("DistanceX", -1, 1, 19, 2, Q("8.4 mm")))
sketch1.addConstraint(Sketcher.Constraint("DistanceX", -1, 1, 23, 2, Q("8.2 mm")))
sketch1.addConstraint(Sketcher.Constraint("DistanceY", -1, 1, 39, 2, Q("58.5 mm")))
sketch1.addConstraint(Sketcher.Constraint("DistanceX", 71, 2, -1, 1, Q("6.7 mm")))
sketch1.addConstraint(Sketcher.Constraint("DistanceX", -1, 1, 79, 2, Q("23.6 mm")))
sketch1.addConstraint(Sketcher.Constraint("DistanceX", 3, 2, 3, 1, Q("14.425 mm")))
sketch1.addConstraint(Sketcher.Constraint("DistanceY", -1, 1, 37, 3, Q("76.75 mm")))
sketch1.addConstraint(Sketcher.Constraint("DistanceY", -1, 1, 58, 3, Q("56.25 mm")))
sketch1.addConstraint(Sketcher.Constraint("DistanceX", 59, 3, -1, 1, Q("15.25 mm")))
sketch1.addConstraint(Sketcher.Constraint("DistanceY", -1, 1, 59, 3, Q("15.25 mm")))
sketch1.addConstraint(Sketcher.Constraint("DistanceX", 60, 3, -1, 1, Q("12.75 mm")))
sketch1.addConstraint(Sketcher.Constraint("DistanceY", -1, 1, 60, 3, Q("12.75 mm")))
sketch1.addConstraint(Sketcher.Constraint("DistanceX", 8, 2, -1, 1, Q("9.65 mm")))
sketch1.addConstraint(Sketcher.Constraint("DistanceX", 9, 2, -1, 1, Q("9.15 mm")))
sketch1.addConstraint(Sketcher.Constraint("DistanceY", -1, 1, 15, 2, Q("80.25 mm")))
sketch1.addConstraint(Sketcher.Constraint("DistanceX", -1, 1, 17, 2, Q("9.65 mm")))
sketch1.addConstraint(Sketcher.Constraint("DistanceX", -1, 1, 21, 2, Q("11.45 mm")))
sketch1.addConstraint(Sketcher.Constraint("DistanceY", 77, 2, -1, 1, Q("50.25 mm")))
sketch1.addConstraint(Sketcher.Constraint("DistanceY", 26, 2, 26, 1, Q("19.072499 mm")))
sketch1.addConstraint(Sketcher.Constraint("DistanceX", 4, 2, -1, 1, Q("10.425 mm")))
sketch1.addConstraint(Sketcher.Constraint("DistanceY", 5, 1, 5, 2, Q("15.358851 mm")))
sketch1.addConstraint(Sketcher.Constraint("DistanceY", 10, 1, 10, 2, Q("29.219481 mm")))
sketch1.addConstraint(Sketcher.Constraint("DistanceY", 20, 2, 20, 1, Q("21.743872 mm")))
sketch1.addConstraint(Sketcher.Constraint("DistanceY", 67, 1, 67, 2, Q("16.172391 mm")))
sketch1.addConstraint(Sketcher.Constraint("DistanceY", -1, 1, 49, 2, Q("74.497199 mm")))
sketch1.addConstraint(Sketcher.Constraint("DistanceX", 16, 1, 16, 2, Q("8.201855 mm")))
sketch1.addConstraint(Sketcher.Constraint("DistanceX", 43, 1, 43, 2, Q("0.097494 mm")))
sketch1.addConstraint(Sketcher.Constraint("DistanceY", 1, 1, 1, 2, Q("12.566928 mm")))
sketch1.addConstraint(Sketcher.Constraint("DistanceY", 7, 1, 7, 2, Q("28.954076 mm")))
sketch1.addConstraint(Sketcher.Constraint("DistanceY", 12, 1, 12, 2, Q("5.094966 mm")))
sketch1.addConstraint(Sketcher.Constraint("DistanceY", 22, 2, 22, 1, Q("35.470594 mm")))
sketch1.addConstraint(Sketcher.Constraint("DistanceY", 39, 2, 39, 1, Q("3.451116 mm")))
sketch1.addConstraint(Sketcher.Constraint("DistanceY", 63, 2, 63, 1, Q("12.206246 mm")))
sketch1.addConstraint(Sketcher.Constraint("DistanceY", 75, 3, -1, 1, Q("62.120021 mm")))
sketch1.addConstraint(Sketcher.Constraint("DistanceY", 71, 2, -1, 1, Q("9.333072 mm")))
pad1 = body.newObject("PartDesign::Pad", "Pad")
pad1.Profile = sketch1
pad1.Length = 1.6
pad1.Reversed = True

doc.recompute()
